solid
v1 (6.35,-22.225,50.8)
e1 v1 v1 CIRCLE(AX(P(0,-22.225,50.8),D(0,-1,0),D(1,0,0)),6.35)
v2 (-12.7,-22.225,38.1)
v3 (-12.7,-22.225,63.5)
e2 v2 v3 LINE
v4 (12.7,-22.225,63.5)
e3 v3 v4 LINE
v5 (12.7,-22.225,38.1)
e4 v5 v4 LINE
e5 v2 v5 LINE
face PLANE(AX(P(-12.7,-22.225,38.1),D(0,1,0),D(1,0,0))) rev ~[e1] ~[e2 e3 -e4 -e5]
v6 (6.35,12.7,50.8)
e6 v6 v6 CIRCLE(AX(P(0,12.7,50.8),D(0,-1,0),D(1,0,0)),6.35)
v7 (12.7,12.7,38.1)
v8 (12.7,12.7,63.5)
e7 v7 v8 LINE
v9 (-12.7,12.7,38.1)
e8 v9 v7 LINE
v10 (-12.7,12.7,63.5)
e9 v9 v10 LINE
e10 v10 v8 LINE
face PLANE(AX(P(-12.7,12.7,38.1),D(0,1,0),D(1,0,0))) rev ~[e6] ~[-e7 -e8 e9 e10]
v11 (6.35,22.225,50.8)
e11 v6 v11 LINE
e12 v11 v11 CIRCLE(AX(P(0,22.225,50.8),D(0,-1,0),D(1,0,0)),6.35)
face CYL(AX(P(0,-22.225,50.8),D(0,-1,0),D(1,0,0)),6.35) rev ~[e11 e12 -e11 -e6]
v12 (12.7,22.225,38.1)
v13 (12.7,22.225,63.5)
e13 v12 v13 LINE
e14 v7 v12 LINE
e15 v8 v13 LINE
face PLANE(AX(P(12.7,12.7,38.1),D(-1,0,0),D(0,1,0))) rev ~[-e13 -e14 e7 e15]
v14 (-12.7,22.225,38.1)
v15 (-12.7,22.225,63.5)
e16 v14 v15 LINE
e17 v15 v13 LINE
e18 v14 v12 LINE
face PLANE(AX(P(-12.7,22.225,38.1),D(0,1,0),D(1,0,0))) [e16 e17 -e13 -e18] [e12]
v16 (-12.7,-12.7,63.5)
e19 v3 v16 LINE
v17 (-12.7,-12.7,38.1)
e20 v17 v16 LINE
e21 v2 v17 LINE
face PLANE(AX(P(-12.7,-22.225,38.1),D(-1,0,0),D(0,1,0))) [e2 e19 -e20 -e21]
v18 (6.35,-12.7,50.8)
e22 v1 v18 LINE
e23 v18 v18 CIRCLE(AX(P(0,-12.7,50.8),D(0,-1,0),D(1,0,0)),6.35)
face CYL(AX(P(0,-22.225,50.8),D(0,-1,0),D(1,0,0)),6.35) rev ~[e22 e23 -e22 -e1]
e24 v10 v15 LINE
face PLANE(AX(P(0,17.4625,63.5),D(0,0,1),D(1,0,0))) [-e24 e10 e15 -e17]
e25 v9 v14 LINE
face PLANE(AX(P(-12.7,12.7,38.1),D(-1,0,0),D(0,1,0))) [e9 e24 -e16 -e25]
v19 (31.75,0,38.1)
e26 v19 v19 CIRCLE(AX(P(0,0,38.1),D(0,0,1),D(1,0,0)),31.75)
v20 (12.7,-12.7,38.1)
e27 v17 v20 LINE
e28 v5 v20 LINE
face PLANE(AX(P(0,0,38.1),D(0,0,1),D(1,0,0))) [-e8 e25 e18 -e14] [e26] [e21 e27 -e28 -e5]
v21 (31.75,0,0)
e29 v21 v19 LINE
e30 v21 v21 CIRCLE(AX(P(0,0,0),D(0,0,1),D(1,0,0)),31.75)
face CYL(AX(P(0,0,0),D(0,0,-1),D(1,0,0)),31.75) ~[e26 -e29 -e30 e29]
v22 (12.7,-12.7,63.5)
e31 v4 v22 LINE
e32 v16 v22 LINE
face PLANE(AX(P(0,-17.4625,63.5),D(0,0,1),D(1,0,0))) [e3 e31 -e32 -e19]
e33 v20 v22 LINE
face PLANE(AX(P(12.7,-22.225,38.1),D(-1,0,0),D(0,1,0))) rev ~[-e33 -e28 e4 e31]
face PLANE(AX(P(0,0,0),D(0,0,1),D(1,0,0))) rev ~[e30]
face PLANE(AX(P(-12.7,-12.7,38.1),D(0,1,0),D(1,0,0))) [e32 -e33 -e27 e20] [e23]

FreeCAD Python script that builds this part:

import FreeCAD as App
import Part
import Sketcher

V = App.Vector
Q = App.Units.Quantity


def add_polygon(sketch, points):
    """Adds a closed chain of lines whose ends are joined by coincident constraints."""
    first, n = sketch.GeometryCount, len(points)
    for a, b in zip(points, points[1:] + points[:1]):
        sketch.addGeometry(Part.LineSegment(App.Vector(*a, 0), App.Vector(*b, 0)), False)
    for i in range(n):
        sketch.addConstraint(Sketcher.Constraint("Coincident", first + i, 2, first + (i + 1) % n, 1))

doc = App.newDocument("Part")
body = doc.addObject("PartDesign::Body", "Body")

# Sketch on XY plane
sketch1 = body.newObject("Sketcher::SketchObject", "Sketch")
sketch1.AttachmentSupport = (doc.getObject("XY_Plane"), [""])
sketch1.MapMode = "FlatFace"
sketch1.addGeometry(Part.Circle(V(0, 0, 0), V(0, 0, 1), 31.75), False)
sketch1.addConstraint([
    Sketcher.Constraint("Coincident", 0, 3, -1, 1),
    Sketcher.Constraint("Diameter", 0, Q("2.5 in")),
])
pad1 = body.newObject("PartDesign::Pad", "Pad")
pad1.Profile = sketch1
pad1.Length = Q("1.5 in")

# Sketch on XY plane
sketch2 = body.newObject("Sketcher::SketchObject", "Sketch001")
sketch2.AttachmentSupport = (doc.getObject("XY_Plane"), [""])
sketch2.MapMode = "FlatFace"
sketch2.AttachmentOffset = App.Placement(V(0, 0, 1.5 * 25.4), App.Rotation())
add_polygon(sketch2, [(-12.7, 22.225), (-12.7, 12.7), (12.7, 12.7), (12.7, 22.225)])  # lines 0-3
add_polygon(sketch2, [(-12.7, -12.7), (-12.7, -22.225), (12.7, -22.225), (12.7, -12.7)])  # lines 4-7
sketch2.addConstraint([
    Sketcher.Constraint("Vertical", 0),
    Sketcher.Constraint("Horizontal", 1),
    Sketcher.Constraint("Vertical", 2),
    Sketcher.Constraint("Horizontal", 3),
    Sketcher.Constraint("Vertical", 4),
    Sketcher.Constraint("Horizontal", 5),
    Sketcher.Constraint("Vertical", 6),
    Sketcher.Constraint("Horizontal", 7),
    Sketcher.Constraint("Symmetric", 2, 2, 4, 2, -1, 1),
    Sketcher.Constraint("Symmetric", 0, 2, 6, 2, -1, 1),
    Sketcher.Constraint("Vertical", 3, 2, 4, 2),
    Sketcher.Constraint("DistanceX", 1, 1, 1, 2, Q("1 in")),
    Sketcher.Constraint("DistanceY", 6, 2, 1, 2, Q("1 in")),
    Sketcher.Constraint("DistanceY", 0, 2, 0, 1, Q("0.375 in")),
])
pad2 = body.newObject("PartDesign::Pad", "Pad001")
pad2.Profile = sketch2
pad2.Length = Q("1 in")

# Sketch on XZ plane
sketch3 = body.newObject("Sketcher::SketchObject", "Sketch002")
sketch3.AttachmentSupport = (doc.getObject("XZ_Plane"), [""])
sketch3.MapMode = "FlatFace"
sketch3.AttachmentOffset = App.Placement(V(0, 0, 0.875 * 25.4), App.Rotation())
sketch3.addGeometry(Part.Circle(V(0, 50.8, 0), V(0, 0, 1), 6.35), False)
sketch3.addConstraint([
    Sketcher.Constraint("PointOnObject", 0, 3, -2),
    Sketcher.Constraint("Diameter", 0, Q("0.5 in")),
    Sketcher.Constraint("DistanceY", -1, 1, 0, 3, Q("2 in")),
])
pocket1 = body.newObject("PartDesign::Pocket", "Pocket")
pocket1.Profile = sketch3
pocket1.Type = "ThroughAll"

doc.recompute()
